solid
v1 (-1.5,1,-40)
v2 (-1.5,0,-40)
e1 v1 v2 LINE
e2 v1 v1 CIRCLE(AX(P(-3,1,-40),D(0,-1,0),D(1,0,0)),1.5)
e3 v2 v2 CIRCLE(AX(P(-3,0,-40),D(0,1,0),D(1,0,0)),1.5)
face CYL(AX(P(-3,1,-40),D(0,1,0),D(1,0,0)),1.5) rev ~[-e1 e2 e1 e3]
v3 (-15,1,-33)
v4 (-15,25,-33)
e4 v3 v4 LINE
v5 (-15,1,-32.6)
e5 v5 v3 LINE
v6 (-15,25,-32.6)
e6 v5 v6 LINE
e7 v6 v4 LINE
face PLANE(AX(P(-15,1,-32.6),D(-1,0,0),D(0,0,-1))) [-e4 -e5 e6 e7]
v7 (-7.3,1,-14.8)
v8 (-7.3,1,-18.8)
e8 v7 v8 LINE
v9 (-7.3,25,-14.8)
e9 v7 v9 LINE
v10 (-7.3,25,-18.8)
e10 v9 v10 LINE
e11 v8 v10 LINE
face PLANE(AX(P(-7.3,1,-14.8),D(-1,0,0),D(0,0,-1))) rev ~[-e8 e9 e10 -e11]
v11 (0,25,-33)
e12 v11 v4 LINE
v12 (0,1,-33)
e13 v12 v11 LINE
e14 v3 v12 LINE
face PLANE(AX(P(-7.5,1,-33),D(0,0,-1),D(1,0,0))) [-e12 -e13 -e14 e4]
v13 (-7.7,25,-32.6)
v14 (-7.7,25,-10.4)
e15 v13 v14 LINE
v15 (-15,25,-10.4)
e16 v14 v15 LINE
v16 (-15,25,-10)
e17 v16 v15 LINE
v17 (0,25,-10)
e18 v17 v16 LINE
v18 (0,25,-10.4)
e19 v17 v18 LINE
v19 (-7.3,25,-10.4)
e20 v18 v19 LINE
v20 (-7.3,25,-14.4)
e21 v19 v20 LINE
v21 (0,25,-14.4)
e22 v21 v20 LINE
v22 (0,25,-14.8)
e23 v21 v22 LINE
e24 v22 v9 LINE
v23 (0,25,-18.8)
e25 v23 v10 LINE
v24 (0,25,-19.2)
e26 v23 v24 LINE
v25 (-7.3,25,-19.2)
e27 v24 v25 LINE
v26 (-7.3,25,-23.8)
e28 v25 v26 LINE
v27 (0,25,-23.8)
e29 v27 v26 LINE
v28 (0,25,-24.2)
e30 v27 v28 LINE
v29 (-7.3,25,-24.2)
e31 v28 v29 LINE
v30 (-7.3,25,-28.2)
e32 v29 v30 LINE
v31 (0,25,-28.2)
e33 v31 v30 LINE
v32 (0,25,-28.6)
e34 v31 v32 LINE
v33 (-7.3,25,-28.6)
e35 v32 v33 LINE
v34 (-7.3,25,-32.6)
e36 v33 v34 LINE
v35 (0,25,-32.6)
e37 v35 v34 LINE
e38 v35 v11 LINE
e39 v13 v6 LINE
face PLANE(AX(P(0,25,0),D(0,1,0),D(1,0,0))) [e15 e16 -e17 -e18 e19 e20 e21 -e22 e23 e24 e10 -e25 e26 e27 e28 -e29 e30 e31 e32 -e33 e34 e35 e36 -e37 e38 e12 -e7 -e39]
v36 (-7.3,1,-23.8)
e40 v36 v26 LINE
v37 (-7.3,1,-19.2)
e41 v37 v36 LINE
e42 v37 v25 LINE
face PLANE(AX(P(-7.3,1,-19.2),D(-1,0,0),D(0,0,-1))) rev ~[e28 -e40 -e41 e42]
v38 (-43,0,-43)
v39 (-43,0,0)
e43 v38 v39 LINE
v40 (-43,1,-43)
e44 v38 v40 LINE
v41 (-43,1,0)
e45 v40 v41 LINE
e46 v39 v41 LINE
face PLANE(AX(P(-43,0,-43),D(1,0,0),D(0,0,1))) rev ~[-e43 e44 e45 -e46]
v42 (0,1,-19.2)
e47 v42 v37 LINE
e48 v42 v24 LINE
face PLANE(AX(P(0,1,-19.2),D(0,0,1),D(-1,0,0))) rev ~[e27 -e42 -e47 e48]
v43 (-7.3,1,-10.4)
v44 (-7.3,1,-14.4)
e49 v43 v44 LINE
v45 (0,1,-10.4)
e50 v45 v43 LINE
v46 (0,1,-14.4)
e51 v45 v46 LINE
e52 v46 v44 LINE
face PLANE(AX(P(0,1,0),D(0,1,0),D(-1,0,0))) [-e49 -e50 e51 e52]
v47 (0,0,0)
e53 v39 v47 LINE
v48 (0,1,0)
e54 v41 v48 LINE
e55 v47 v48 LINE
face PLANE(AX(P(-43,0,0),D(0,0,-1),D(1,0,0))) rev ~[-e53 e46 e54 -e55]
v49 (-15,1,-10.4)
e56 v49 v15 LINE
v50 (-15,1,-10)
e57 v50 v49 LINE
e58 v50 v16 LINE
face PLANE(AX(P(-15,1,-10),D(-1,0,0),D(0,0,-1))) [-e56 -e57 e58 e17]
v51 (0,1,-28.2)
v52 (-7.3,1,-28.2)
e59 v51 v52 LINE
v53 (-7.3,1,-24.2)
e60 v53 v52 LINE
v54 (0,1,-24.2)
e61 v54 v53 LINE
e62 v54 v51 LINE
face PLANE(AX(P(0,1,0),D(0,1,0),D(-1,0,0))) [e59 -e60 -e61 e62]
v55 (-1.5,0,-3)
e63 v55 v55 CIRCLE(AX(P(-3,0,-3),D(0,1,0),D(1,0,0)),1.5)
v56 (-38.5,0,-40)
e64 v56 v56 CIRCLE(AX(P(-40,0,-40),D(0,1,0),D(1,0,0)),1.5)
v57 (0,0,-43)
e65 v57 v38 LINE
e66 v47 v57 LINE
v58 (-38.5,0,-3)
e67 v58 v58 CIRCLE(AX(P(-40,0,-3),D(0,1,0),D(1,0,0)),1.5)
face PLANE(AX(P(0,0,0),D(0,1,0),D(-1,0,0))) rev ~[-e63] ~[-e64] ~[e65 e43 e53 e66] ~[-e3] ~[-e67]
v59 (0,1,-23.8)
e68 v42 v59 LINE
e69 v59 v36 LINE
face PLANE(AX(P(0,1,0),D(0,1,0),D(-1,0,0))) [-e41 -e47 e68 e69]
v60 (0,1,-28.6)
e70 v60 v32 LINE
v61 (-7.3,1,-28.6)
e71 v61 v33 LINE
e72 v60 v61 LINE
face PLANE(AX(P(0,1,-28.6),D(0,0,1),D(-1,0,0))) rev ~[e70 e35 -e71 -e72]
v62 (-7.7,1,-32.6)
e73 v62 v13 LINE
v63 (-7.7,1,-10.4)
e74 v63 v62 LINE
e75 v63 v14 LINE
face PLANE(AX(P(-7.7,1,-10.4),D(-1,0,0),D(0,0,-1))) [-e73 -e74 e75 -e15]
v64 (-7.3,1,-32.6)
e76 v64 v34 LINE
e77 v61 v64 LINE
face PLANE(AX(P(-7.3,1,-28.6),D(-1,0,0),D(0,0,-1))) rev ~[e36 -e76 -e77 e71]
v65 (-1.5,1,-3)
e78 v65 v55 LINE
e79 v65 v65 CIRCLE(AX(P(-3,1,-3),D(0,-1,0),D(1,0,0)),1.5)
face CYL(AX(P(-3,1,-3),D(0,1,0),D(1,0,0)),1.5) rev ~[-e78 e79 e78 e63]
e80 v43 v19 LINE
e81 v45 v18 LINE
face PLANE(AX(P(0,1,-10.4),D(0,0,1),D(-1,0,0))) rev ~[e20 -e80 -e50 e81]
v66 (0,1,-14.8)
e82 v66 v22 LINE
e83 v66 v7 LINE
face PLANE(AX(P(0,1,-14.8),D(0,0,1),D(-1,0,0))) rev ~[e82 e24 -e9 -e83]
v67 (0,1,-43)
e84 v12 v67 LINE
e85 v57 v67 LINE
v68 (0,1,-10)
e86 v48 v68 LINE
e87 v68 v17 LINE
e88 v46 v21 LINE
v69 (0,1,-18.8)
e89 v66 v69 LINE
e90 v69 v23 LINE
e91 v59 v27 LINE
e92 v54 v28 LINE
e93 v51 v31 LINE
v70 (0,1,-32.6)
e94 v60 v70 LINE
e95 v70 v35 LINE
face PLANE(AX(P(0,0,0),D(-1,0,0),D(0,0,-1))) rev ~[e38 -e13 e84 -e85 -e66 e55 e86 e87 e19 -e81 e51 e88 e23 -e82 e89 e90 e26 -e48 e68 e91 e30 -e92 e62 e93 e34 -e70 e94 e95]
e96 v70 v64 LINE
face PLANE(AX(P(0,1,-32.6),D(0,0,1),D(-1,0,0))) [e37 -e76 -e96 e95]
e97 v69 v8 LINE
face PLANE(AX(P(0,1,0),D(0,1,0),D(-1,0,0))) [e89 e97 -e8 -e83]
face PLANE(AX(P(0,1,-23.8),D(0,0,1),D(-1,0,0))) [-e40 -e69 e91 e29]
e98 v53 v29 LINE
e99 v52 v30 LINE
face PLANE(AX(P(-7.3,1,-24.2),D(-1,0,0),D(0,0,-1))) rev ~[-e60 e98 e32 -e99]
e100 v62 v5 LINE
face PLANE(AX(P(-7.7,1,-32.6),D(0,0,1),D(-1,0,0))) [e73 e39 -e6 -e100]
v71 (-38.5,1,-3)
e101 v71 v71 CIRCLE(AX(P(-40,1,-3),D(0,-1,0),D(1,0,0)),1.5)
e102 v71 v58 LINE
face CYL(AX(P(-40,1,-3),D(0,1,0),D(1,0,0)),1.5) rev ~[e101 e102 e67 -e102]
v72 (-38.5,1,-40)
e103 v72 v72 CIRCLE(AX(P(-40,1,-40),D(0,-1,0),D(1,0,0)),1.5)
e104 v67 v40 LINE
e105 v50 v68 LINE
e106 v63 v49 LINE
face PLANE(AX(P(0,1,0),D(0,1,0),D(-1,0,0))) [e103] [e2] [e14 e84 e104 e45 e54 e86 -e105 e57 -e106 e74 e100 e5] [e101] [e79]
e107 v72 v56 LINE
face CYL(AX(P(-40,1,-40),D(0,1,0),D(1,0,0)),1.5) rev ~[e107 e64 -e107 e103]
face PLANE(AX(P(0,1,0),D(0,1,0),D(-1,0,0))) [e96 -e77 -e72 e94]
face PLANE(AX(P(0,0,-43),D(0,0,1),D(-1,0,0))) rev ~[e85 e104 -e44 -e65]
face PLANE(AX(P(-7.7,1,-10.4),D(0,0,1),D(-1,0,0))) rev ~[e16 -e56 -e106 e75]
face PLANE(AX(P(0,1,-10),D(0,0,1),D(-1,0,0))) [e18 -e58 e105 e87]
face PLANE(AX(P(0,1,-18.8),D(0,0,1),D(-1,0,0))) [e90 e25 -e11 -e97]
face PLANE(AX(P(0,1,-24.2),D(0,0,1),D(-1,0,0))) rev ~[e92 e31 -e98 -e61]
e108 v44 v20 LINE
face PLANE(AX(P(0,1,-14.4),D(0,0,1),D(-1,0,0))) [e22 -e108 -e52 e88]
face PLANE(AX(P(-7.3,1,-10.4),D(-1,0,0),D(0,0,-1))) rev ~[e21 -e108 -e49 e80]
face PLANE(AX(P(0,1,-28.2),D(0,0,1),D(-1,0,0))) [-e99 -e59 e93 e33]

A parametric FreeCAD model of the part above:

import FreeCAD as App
import Part
import Sketcher

V = App.Vector
Q = App.Units.Quantity

doc = App.newDocument("Part")
params = doc.addObject("Spreadsheet::Sheet", "Params")
for row, (alias, value) in enumerate([
    ("sketch1_width", "43 mm"),
    ("pad1_length", "1 mm"),
    ("sketch2_diameter", "3 mm"),
    ("sketch3_width", "15 mm"),
    ("sketch3_height", "0.4 mm"),
    ("sketch3_height2", "4.6 mm"),
    ("pad2_length", "24 mm"),
], start=1):
    params.set(f"A{row}", alias)
    params.set(f"B{row}", "=" + value)
    params.setAlias(f"B{row}", alias)

body = doc.addObject("PartDesign::Body", "Body")

# Sketch on XZ plane
sketch1 = body.newObject("Sketcher::SketchObject", "Sketch")
sketch1.AttachmentSupport = (doc.getObject("XZ_Plane"), [""])
sketch1.MapMode = "FlatFace"
sketch1.addGeometry([
    Part.LineSegment(V(-43, 0, 0), V(0, 0, 0)),
    Part.LineSegment(V(0, 0, 0), V(0, -43, 0)),
    Part.LineSegment(V(0, -43, 0), V(-43, -43, 0)),
    Part.LineSegment(V(-43, -43, 0), V(-43, 0, 0)),
], False)
sketch1.addConstraint([
    Sketcher.Constraint("Coincident", 0, 2, 1, 1),
    Sketcher.Constraint("Coincident", 1, 2, 2, 1),
    Sketcher.Constraint("Coincident", 2, 2, 3, 1),
    Sketcher.Constraint("Coincident", 3, 2, 0, 1),
    Sketcher.Constraint("Horizontal", 0),
    Sketcher.Constraint("Vertical", 1),
    Sketcher.Constraint("Horizontal", 2),
    Sketcher.Constraint("Vertical", 3),
    Sketcher.Constraint("Coincident", 0, 2, -1, 1),
    Sketcher.Constraint("Equal", 2, 1),
    Sketcher.Constraint("DistanceX", 0, 1, 0, 2, Q("43 mm")),
])
sketch1.setExpression("Constraints[10]", "Params.sketch1_width")
pad1 = body.newObject("PartDesign::Pad", "Pad")
pad1.Profile = sketch1
pad1.setExpression("Length", "Params.pad1_length")
pad1.Reversed = True

# Sketch on XZ plane
sketch2 = body.newObject("Sketcher::SketchObject", "Sketch001")
sketch2.AttachmentSupport = (doc.getObject("XZ_Plane"), [""])
sketch2.MapMode = "FlatFace"
sketch2.AttachmentOffset = App.Placement(V(0, 0, -1), App.Rotation())
sketch2.addGeometry([
    Part.Circle(V(-40, -3, 0), V(0, 0, 1), 1.5),
    Part.Circle(V(-3, -3, 0), V(0, 0, 1), 1.5),
    Part.Circle(V(-40, -40, 0), V(0, 0, 1), 1.5),
    Part.Circle(V(-3, -40, 0), V(0, 0, 1), 1.5),
], False)
sketch2.addConstraint([
    Sketcher.Constraint("Equal", 0, 1),
    Sketcher.Constraint("Equal", 1, 2),
    Sketcher.Constraint("Equal", 2, 3),
    Sketcher.Constraint("Horizontal", 0, 3, 1, 3),
    Sketcher.Constraint("Horizontal", 2, 3, 3, 3),
    Sketcher.Constraint("Vertical", 0, 3, 2, 3),
    Sketcher.Constraint("Vertical", 1, 3, 3, 3),
    Sketcher.Constraint("Diameter", 0, Q("3 mm")),
    Sketcher.Constraint("DistanceY", 0, 3, -1, 1, Q("3 mm")),
    Sketcher.Constraint("DistanceX", 1, 3, -1, 1, Q("3 mm")),
    Sketcher.Constraint("DistanceX", 0, 3, -1, 1, Q("40 mm")),
    Sketcher.Constraint("DistanceY", 2, 3, -1, 1, Q("40 mm")),
])
sketch2.setExpression("Constraints[7]", "Params.sketch2_diameter")
pocket1 = body.newObject("PartDesign::Pocket", "Pocket")
pocket1.Profile = sketch2
pocket1.Type = "ThroughAll"
pocket1.Reversed = True

# Sketch on XZ plane
sketch3 = body.newObject("Sketcher::SketchObject", "Sketch002")
sketch3.AttachmentSupport = (doc.getObject("XZ_Plane"), [""])
sketch3.MapMode = "FlatFace"
sketch3.AttachmentOffset = App.Placement(V(0, 0, -1), App.Rotation())
sketch3.addGeometry([
    Part.LineSegment(V(0, -10, 0), V(0, -10.4, 0)),  # 0
    Part.LineSegment(V(0, -10.4, 0), V(-7.3, -10.4, 0)),  # 1
    Part.LineSegment(V(-7.3, -10.4, 0), V(-7.3, -14.4, 0)),  # 2
    Part.LineSegment(V(-7.3, -14.4, 0), V(0, -14.4, 0)),  # 3
    Part.LineSegment(V(0, -14.4, 0), V(0, -14.8, 0)),  # 4
    Part.LineSegment(V(0, -14.8, 0), V(-7.3, -14.8, 0)),  # 5
    Part.LineSegment(V(-7.3, -14.8, 0), V(-7.3, -18.8, 0)),  # 6
    Part.LineSegment(V(-7.3, -18.8, 0), V(0, -18.8, 0)),  # 7
    Part.LineSegment(V(0, -18.8, 0), V(0, -19.2, 0)),  # 8
    Part.LineSegment(V(0, -19.2, 0), V(-7.3, -19.2, 0)),  # 9
    Part.LineSegment(V(-7.3, -19.2, 0), V(-7.3, -23.8, 0)),  # 10
    Part.LineSegment(V(-7.3, -23.8, 0), V(0, -23.8, 0)),  # 11
    Part.LineSegment(V(0, -23.8, 0), V(0, -24.2, 0)),  # 12
    Part.LineSegment(V(0, -24.2, 0), V(-7.3, -24.2, 0)),  # 13
    Part.LineSegment(V(-7.3, -24.2, 0), V(-7.3, -28.2, 0)),  # 14
    Part.LineSegment(V(-7.3, -28.2, 0), V(0, -28.2, 0)),  # 15
    Part.LineSegment(V(0, -28.2, 0), V(0, -28.6, 0)),  # 16
    Part.LineSegment(V(0, -28.6, 0), V(-7.3, -28.6, 0)),  # 17
    Part.LineSegment(V(-7.3, -28.6, 0), V(-7.3, -32.6, 0)),  # 18
    Part.LineSegment(V(-7.3, -32.6, 0), V(0, -32.6, 0)),  # 19
    Part.LineSegment(V(0, -32.6, 0), V(0, -33, 0)),  # 20
    Part.LineSegment(V(0, -33, 0), V(-15, -33, 0)),  # 21
    Part.LineSegment(V(-15, -33, 0), V(-15, -32.6, 0)),  # 22
    Part.LineSegment(V(-15, -32.6, 0), V(-7.7, -32.6, 0)),  # 23
    Part.LineSegment(V(-7.7, -32.6, 0), V(-7.7, -10.4, 0)),  # 24
    Part.LineSegment(V(-7.7, -10.4, 0), V(-15, -10.4, 0)),  # 25
    Part.LineSegment(V(-15, -10.4, 0), V(-15, -10, 0)),  # 26
    Part.LineSegment(V(-15, -10, 0), V(0, -10, 0)),  # 27
], False)
sketch3.addConstraint([
    Sketcher.Constraint("Coincident", 0, 2, 1, 1),
    Sketcher.Constraint("Coincident", 1, 2, 2, 1),
    Sketcher.Constraint("Coincident", 2, 2, 3, 1),
    Sketcher.Constraint("Coincident", 3, 2, 4, 1),
    Sketcher.Constraint("Coincident", 4, 2, 5, 1),
    Sketcher.Constraint("Coincident", 5, 2, 6, 1),
    Sketcher.Constraint("Coincident", 6, 2, 7, 1),
    Sketcher.Constraint("Coincident", 7, 2, 8, 1),
    Sketcher.Constraint("Coincident", 8, 2, 9, 1),
    Sketcher.Constraint("Coincident", 9, 2, 10, 1),
    Sketcher.Constraint("Coincident", 10, 2, 11, 1),
    Sketcher.Constraint("Coincident", 11, 2, 12, 1),
    Sketcher.Constraint("Coincident", 12, 2, 13, 1),
    Sketcher.Constraint("Coincident", 13, 2, 14, 1),
    Sketcher.Constraint("Coincident", 14, 2, 15, 1),
    Sketcher.Constraint("Coincident", 15, 2, 16, 1),
    Sketcher.Constraint("Coincident", 16, 2, 17, 1),
    Sketcher.Constraint("Coincident", 17, 2, 18, 1),
    Sketcher.Constraint("Coincident", 18, 2, 19, 1),
    Sketcher.Constraint("Coincident", 19, 2, 20, 1),
    Sketcher.Constraint("Coincident", 20, 2, 21, 1),
    Sketcher.Constraint("Coincident", 21, 2, 22, 1),
    Sketcher.Constraint("Coincident", 22, 2, 23, 1),
    Sketcher.Constraint("Coincident", 23, 2, 24, 1),
    Sketcher.Constraint("Coincident", 24, 2, 25, 1),
    Sketcher.Constraint("Coincident", 25, 2, 26, 1),
    Sketcher.Constraint("Coincident", 26, 2, 27, 1),
    Sketcher.Constraint("Coincident", 27, 2, 0, 1),
    Sketcher.Constraint("Vertical", 0),
    Sketcher.Constraint("Horizontal", 1),
    Sketcher.Constraint("Vertical", 2),
    Sketcher.Constraint("Horizontal", 3),
    Sketcher.Constraint("Vertical", 4),
    Sketcher.Constraint("Horizontal", 5),
    Sketcher.Constraint("Vertical", 6),
    Sketcher.Constraint("Horizontal", 7),
    Sketcher.Constraint("Vertical", 8),
    Sketcher.Constraint("Horizontal", 9),
    Sketcher.Constraint("Vertical", 10),
    Sketcher.Constraint("Horizontal", 11),
    Sketcher.Constraint("Vertical", 12),
    Sketcher.Constraint("Horizontal", 13),
    Sketcher.Constraint("Vertical", 14),
    Sketcher.Constraint("Horizontal", 15),
    Sketcher.Constraint("Vertical", 16),
    Sketcher.Constraint("Horizontal", 17),
    Sketcher.Constraint("Vertical", 18),
    Sketcher.Constraint("Horizontal", 19),
    Sketcher.Constraint("Vertical", 20),
    Sketcher.Constraint("Horizontal", 21),
    Sketcher.Constraint("Vertical", 22),
    Sketcher.Constraint("Horizontal", 23),
    Sketcher.Constraint("Vertical", 24),
    Sketcher.Constraint("Horizontal", 25),
    Sketcher.Constraint("Vertical", 26),
    Sketcher.Constraint("Horizontal", 27),
    Sketcher.Constraint("PointOnObject", 0, 2, -2),
    Sketcher.Constraint("PointOnObject", 3, 2, -2),
    Sketcher.Constraint("PointOnObject", 7, 2, -2),
    Sketcher.Constraint("PointOnObject", 11, 2, -2),
    Sketcher.Constraint("PointOnObject", 15, 2, -2),
    Sketcher.Constraint("PointOnObject", 19, 2, -2),
    Sketcher.Constraint("Horizontal", 19, 2, 22, 2),
    Sketcher.Constraint("Horizontal", 1, 2, 24, 2),
    Sketcher.Constraint("Vertical", 2, 2, 5, 2),
    Sketcher.Constraint("Vertical", 6, 2, 9, 2),
    Sketcher.Constraint("Vertical", 10, 2, 13, 2),
    Sketcher.Constraint("Vertical", 14, 2, 17, 2),
    Sketcher.Constraint("Vertical", 22, 2, 25, 2),
    Sketcher.Constraint("Equal", 19, 23),
    Sketcher.Constraint("Equal", 0, 4),
    Sketcher.Constraint("Equal", 2, 6),
    Sketcher.Constraint("Equal", 4, 8),
    Sketcher.Constraint("Equal", 8, 12),
    Sketcher.Constraint("Equal", 6, 14),
    Sketcher.Constraint("Equal", 12, 16),
    Sketcher.Constraint("Equal", 14, 18),
    Sketcher.Constraint("Equal", 16, 20),
    Sketcher.Constraint("DistanceX", 21, 2, 21, 1, Q("15 mm")),
    Sketcher.Constraint("DistanceY", 0, 2, 0, 1, Q("0.4 mm")),
    Sketcher.Constraint("DistanceY", 26, 2, -1, 1, Q("10 mm")),
    Sketcher.Constraint("DistanceY", 4, 2, 0, 2, Q("4.4 mm")),
    Sketcher.Constraint("DistanceX", 23, 2, 18, 2, Q("0.4 mm")),
    Sketcher.Constraint("DistanceY", 10, 2, 10, 1, Q("4.6 mm")),
])
sketch3.setExpression("Constraints[78]", "Params.sketch3_width")
sketch3.setExpression("Constraints[79]", "Params.sketch3_height")
sketch3.setExpression("Constraints[83]", "Params.sketch3_height2")
pad2 = body.newObject("PartDesign::Pad", "Pad001")
pad2.Profile = sketch3
pad2.setExpression("Length", "Params.pad2_length")
pad2.Reversed = True

doc.recompute()
